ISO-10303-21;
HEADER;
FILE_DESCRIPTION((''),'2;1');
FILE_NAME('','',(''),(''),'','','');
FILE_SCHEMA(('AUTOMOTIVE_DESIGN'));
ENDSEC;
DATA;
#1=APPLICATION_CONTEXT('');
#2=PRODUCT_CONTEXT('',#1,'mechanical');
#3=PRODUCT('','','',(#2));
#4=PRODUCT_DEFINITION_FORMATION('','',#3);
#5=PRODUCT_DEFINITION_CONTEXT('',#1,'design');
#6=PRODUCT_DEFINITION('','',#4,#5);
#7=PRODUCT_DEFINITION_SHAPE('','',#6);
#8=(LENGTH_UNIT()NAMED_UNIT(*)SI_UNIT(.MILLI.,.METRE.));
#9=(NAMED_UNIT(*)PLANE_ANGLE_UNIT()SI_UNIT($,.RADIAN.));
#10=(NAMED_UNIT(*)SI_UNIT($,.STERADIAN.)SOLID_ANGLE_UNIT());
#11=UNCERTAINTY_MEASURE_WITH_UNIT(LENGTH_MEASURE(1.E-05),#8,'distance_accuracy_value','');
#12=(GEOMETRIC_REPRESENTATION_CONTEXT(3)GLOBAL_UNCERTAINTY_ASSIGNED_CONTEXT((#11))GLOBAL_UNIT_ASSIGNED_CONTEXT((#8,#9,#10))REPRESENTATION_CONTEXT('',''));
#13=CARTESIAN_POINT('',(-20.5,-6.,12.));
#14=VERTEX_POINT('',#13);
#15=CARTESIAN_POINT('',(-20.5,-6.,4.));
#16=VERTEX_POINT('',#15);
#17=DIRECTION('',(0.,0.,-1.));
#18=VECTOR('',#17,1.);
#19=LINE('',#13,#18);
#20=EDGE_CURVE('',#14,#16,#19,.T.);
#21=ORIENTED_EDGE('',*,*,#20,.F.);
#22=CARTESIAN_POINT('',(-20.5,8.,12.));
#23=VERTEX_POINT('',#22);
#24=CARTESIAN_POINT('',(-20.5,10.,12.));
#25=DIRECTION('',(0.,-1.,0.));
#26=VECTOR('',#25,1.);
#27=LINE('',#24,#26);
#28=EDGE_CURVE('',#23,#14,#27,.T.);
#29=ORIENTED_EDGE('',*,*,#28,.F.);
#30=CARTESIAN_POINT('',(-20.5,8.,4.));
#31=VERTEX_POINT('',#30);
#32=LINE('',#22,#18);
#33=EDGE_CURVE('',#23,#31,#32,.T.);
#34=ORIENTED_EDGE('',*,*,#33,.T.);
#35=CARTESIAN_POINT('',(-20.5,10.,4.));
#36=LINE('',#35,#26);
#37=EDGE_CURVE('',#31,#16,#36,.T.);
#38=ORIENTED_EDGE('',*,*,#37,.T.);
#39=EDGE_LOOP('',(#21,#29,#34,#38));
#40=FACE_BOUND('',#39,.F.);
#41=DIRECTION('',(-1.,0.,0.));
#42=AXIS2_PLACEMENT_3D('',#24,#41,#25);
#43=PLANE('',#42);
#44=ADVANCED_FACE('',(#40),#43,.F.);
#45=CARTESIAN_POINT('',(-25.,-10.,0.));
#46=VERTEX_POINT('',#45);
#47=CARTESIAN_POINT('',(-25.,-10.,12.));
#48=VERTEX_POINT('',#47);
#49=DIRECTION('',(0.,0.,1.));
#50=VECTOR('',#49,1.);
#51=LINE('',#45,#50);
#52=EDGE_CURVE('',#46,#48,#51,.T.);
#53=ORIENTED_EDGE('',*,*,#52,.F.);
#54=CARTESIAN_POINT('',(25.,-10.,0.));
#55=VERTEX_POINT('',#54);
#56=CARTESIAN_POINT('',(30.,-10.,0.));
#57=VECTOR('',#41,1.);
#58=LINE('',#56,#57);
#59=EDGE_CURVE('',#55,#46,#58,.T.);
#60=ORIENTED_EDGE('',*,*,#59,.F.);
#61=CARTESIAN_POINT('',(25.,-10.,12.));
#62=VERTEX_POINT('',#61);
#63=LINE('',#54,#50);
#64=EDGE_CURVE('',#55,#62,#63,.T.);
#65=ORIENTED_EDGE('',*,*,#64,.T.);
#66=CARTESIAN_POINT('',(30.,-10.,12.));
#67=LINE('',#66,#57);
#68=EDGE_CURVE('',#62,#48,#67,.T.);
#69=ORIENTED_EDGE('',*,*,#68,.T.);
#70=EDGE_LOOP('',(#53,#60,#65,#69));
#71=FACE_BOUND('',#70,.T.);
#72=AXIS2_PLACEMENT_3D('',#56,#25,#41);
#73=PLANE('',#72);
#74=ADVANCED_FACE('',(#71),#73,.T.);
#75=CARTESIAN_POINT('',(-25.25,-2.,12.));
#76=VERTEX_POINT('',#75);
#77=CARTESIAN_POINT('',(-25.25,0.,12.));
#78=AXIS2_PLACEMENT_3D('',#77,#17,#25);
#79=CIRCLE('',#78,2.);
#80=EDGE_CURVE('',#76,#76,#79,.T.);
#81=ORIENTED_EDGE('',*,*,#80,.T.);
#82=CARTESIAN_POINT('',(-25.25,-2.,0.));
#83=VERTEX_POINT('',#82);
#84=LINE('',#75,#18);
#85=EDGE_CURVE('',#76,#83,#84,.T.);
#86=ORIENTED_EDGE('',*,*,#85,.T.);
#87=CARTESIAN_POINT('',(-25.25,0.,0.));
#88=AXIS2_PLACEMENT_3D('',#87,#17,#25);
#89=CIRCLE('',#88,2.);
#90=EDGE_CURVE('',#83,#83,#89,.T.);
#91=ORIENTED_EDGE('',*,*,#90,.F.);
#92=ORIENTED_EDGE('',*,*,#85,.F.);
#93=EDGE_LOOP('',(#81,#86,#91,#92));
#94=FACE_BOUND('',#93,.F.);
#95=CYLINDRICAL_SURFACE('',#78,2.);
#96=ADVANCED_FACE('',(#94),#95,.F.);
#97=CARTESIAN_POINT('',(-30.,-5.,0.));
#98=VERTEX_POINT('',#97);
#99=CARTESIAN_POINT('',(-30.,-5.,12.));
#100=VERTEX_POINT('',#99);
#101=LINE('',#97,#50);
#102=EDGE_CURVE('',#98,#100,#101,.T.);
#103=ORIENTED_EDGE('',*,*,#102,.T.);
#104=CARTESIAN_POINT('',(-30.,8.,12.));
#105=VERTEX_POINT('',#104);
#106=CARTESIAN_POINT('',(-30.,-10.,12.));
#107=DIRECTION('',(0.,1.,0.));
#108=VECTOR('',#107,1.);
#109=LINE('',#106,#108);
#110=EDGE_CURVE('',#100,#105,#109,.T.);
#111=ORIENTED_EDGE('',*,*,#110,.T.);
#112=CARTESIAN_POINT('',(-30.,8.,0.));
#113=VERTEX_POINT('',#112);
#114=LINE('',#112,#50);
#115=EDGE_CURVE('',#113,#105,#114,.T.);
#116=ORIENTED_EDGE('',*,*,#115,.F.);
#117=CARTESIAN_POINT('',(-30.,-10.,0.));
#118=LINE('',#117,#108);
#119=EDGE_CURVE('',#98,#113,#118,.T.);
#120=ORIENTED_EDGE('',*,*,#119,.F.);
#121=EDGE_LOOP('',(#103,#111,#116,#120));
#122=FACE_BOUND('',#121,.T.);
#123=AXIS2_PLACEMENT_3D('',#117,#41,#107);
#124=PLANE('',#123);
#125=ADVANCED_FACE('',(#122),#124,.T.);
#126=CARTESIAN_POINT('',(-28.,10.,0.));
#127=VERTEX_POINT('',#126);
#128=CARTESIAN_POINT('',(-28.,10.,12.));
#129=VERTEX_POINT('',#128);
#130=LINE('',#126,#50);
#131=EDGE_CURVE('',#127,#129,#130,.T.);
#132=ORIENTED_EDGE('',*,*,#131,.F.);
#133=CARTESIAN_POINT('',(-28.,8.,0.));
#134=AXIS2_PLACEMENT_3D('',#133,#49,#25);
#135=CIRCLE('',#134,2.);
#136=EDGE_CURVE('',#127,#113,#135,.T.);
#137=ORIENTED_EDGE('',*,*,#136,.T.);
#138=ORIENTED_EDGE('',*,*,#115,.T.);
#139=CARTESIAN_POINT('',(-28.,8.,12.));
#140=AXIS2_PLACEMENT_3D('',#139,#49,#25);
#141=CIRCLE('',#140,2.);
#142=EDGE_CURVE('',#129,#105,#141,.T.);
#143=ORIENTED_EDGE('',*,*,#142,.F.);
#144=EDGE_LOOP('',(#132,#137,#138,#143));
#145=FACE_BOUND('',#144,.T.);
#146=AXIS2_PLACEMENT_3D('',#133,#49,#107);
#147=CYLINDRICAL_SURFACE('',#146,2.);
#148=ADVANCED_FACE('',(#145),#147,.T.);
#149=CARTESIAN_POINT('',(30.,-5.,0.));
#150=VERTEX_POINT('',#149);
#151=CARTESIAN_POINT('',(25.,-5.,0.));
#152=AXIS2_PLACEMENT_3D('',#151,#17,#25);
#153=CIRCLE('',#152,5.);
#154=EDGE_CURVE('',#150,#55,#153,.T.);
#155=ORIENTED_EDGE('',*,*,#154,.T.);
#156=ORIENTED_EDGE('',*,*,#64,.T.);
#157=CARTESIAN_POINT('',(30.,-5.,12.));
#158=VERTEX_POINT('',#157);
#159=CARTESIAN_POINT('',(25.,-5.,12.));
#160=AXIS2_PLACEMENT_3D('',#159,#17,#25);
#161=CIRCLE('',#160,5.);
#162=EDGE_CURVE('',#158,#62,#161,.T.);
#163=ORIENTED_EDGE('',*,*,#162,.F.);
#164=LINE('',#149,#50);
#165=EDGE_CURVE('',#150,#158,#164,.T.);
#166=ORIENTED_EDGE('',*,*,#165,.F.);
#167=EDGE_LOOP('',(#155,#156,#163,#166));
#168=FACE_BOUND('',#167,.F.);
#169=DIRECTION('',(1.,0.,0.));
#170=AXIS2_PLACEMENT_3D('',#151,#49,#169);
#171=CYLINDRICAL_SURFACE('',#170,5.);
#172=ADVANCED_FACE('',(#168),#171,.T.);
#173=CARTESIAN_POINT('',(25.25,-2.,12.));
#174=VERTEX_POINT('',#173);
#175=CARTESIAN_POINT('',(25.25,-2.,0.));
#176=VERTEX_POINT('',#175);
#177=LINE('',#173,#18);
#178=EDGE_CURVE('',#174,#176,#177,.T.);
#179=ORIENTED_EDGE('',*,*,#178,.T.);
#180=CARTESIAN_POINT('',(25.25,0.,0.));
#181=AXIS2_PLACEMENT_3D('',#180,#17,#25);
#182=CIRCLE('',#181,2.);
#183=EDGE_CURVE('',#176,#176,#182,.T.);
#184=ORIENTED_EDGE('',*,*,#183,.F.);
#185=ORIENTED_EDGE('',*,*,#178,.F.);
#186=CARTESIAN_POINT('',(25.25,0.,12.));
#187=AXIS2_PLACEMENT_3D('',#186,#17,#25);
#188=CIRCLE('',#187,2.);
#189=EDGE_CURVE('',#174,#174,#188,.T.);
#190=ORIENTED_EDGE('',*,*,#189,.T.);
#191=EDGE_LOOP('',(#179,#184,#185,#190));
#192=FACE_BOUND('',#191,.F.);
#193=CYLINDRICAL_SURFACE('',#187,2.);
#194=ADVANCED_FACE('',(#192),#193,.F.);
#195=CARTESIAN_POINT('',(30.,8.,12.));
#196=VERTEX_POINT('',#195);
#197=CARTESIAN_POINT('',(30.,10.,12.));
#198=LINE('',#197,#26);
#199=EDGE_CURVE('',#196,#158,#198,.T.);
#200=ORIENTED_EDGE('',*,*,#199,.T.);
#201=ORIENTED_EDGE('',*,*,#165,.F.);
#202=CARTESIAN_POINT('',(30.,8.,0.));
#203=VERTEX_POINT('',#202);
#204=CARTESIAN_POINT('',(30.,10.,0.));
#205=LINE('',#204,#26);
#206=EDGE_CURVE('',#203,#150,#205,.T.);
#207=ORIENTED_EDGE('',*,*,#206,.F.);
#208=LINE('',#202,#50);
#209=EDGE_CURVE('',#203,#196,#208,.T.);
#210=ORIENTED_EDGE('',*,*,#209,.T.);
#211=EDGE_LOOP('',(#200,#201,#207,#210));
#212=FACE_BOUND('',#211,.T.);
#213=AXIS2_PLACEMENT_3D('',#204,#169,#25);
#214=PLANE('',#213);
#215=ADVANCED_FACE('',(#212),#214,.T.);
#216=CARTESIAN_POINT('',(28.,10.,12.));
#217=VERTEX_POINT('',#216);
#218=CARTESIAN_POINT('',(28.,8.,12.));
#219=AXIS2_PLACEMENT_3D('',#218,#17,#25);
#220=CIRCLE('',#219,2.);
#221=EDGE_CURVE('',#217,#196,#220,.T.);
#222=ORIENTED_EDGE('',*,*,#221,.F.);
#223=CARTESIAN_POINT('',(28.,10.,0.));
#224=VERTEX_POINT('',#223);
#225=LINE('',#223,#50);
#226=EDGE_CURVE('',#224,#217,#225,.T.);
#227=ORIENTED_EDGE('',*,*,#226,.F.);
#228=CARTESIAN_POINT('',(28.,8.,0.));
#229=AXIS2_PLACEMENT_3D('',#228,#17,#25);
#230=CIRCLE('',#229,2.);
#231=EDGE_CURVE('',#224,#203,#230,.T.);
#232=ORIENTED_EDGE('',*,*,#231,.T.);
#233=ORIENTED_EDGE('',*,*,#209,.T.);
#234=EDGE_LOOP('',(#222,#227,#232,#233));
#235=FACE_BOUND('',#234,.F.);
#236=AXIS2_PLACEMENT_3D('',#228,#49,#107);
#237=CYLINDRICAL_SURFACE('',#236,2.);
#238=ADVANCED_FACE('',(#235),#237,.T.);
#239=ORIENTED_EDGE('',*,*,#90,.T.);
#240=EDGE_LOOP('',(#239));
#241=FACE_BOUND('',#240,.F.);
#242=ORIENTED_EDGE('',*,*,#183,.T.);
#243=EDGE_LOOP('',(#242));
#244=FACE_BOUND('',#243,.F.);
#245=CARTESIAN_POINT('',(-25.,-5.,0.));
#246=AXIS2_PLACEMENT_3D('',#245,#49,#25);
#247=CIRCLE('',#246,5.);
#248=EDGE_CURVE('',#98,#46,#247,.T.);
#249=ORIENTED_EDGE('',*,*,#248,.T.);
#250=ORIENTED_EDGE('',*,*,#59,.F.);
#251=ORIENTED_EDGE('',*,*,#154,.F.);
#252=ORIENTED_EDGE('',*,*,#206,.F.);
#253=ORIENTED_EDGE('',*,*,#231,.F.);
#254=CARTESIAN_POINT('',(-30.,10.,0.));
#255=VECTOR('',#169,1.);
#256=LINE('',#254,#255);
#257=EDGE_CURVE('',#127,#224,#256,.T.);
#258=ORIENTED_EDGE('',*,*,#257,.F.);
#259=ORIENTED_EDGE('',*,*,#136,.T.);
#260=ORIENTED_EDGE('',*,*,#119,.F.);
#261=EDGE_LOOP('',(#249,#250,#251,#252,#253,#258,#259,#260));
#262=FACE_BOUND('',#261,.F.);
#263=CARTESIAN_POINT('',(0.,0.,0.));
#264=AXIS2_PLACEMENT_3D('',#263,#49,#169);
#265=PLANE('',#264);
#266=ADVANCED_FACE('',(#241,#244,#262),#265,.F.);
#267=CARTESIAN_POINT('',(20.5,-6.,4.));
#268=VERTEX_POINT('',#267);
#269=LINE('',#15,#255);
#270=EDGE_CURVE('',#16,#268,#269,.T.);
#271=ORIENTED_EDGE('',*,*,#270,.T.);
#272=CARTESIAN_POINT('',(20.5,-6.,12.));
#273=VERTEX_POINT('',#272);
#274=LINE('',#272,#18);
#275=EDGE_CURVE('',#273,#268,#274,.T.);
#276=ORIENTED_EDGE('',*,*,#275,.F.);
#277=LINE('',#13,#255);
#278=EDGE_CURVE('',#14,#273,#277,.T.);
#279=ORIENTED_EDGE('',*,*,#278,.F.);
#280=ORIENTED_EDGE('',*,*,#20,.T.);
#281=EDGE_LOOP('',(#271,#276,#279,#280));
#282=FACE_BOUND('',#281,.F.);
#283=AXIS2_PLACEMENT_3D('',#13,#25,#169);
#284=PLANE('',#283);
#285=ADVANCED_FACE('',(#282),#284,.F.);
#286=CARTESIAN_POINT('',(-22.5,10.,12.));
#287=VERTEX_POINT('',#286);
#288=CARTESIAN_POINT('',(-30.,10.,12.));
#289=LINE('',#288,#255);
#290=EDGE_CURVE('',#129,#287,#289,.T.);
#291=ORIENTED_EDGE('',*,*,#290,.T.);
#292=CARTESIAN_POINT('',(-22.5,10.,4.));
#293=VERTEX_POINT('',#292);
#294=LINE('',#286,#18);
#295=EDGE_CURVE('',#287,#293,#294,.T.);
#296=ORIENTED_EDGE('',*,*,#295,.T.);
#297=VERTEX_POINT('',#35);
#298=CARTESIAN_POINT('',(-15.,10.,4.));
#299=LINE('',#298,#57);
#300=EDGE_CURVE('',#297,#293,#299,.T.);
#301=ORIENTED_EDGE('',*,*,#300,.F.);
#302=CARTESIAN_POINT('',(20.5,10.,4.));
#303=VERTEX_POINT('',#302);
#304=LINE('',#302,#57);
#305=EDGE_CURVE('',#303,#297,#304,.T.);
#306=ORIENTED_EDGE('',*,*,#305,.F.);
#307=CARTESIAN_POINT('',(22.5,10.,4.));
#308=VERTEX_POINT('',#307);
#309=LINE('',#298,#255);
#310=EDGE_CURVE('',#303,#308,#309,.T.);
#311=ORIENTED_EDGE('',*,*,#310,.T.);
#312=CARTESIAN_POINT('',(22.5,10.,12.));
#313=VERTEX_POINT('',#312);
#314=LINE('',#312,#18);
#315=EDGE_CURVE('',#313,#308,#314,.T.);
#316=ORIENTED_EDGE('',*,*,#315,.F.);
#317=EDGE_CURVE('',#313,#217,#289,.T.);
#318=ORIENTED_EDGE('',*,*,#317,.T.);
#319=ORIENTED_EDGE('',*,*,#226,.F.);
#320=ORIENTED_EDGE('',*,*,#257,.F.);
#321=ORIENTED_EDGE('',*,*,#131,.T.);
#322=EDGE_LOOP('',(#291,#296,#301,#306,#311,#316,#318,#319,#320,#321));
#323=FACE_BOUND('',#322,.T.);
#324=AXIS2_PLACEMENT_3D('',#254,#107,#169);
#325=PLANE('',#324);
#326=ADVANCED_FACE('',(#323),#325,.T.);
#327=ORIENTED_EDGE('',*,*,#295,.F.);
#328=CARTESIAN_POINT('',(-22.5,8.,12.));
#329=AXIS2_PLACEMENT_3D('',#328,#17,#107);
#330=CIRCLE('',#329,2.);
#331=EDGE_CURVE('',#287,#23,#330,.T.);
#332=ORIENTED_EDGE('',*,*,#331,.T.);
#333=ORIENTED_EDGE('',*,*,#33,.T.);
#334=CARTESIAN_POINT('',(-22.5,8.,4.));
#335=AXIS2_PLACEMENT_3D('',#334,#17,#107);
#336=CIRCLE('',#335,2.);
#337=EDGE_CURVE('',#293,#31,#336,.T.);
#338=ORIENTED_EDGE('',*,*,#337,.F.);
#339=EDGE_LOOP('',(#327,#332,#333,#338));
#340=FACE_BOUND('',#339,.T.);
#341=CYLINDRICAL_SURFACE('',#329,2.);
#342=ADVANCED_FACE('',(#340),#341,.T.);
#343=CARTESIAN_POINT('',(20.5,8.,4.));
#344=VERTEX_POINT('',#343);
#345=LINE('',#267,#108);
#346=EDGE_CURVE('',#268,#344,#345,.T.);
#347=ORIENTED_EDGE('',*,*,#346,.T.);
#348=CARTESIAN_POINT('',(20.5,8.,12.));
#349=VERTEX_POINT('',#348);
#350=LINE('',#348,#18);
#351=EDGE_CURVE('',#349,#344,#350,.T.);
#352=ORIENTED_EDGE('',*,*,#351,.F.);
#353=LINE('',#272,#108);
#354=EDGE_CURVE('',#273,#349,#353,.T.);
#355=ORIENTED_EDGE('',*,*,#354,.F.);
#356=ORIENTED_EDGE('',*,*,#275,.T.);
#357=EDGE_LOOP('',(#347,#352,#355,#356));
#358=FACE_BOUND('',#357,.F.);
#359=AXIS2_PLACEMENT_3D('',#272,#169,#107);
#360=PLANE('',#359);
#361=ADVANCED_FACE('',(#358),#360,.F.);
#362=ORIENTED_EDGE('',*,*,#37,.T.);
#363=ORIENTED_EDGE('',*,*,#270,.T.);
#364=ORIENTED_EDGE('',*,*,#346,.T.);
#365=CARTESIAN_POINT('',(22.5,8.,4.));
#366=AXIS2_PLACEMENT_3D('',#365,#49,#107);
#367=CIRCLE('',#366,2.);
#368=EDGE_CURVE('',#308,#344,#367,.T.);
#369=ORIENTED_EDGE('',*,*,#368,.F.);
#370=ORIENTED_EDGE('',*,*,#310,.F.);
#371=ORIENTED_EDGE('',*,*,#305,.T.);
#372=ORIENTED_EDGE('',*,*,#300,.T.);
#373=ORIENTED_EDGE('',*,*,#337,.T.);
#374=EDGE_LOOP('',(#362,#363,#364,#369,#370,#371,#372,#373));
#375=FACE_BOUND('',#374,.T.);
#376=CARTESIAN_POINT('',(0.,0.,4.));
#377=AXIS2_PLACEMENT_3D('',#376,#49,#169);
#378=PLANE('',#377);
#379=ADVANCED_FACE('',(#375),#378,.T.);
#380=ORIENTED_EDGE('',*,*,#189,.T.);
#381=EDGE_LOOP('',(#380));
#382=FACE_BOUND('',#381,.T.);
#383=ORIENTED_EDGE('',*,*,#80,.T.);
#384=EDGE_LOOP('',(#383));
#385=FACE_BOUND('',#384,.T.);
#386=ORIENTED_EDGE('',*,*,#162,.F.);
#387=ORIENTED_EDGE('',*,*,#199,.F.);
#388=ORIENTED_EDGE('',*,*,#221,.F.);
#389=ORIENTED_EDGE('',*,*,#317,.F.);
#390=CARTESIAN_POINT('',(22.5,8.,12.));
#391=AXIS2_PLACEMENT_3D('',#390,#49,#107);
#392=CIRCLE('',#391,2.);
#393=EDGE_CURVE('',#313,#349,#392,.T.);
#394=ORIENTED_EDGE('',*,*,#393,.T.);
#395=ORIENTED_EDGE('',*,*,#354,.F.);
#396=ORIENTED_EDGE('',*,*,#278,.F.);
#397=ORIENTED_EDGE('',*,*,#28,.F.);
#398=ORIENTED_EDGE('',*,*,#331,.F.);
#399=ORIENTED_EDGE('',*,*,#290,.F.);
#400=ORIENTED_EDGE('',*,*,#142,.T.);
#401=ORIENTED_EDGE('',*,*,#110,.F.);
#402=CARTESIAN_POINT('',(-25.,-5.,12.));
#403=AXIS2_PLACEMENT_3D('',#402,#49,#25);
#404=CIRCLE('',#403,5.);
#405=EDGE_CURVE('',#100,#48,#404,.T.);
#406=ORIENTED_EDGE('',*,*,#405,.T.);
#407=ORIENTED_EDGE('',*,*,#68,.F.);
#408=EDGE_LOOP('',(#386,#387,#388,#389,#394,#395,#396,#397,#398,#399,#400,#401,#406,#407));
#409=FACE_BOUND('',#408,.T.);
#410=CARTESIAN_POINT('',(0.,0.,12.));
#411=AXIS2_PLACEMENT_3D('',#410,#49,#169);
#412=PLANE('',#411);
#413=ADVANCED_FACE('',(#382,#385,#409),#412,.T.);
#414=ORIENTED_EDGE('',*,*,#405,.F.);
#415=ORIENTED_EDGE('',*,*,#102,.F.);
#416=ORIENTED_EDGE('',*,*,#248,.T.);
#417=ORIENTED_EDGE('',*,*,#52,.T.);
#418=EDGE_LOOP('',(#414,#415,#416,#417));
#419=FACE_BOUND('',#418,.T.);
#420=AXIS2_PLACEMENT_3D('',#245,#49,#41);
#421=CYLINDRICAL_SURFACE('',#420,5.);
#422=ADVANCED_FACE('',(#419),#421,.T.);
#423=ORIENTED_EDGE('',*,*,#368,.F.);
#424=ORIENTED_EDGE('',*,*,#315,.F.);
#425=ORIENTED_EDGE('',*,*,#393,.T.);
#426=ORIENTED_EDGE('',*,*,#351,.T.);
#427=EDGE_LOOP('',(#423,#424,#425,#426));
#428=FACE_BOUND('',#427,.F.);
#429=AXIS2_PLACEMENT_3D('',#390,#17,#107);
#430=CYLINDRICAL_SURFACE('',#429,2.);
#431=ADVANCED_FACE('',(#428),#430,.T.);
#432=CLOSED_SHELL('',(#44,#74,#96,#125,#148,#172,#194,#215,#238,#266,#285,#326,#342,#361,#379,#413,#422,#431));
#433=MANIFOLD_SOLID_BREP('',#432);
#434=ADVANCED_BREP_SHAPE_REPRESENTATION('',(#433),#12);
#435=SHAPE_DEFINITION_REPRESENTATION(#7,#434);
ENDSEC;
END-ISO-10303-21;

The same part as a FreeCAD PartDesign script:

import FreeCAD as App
import Part
import Sketcher
from FreeCAD import Vector
Q = App.Units.Quantity


def edges_at(feature, points):
    """Names of the edges that pass closest to the given points."""
    edges = feature.Shape.Edges
    near = lambda p: min(range(len(edges)), key=lambda i: edges[i].distToShape(Part.Vertex(*p))[0])
    return sorted({f"Edge{near(p) + 1}" for p in points})

doc = App.newDocument("Part")
params = doc.addObject("Spreadsheet::Sheet", "Params")
for row, (alias, value) in enumerate([
    ("sketch1_width", "60 mm"),
    ("sketch1_height", "20 mm"),
    ("pad1_length", "12 mm"),
    ("sketch2_width", "41 mm"),
    ("sketch2_height", "16 mm"),
    ("pocket1_length", "8 mm"),
    ("sketch3_diameter", "4 mm"),
    ("hole_diameter", "4 mm"),
    ("fillet_radius", "2 mm"),
    ("fillet2_radius", "5 mm"),
], start=1):
    params.set(f"A{row}", alias)
    params.set(f"B{row}", "=" + value)
    params.setAlias(f"B{row}", alias)

body = doc.addObject("PartDesign::Body", "Body")

# Sketch on XY plane
sketch1 = doc.addObject("Sketcher::SketchObject", "Sketch")
body.addObject(sketch1)
sketch1.AttachmentSupport = (doc.XY_Plane, [""])
sketch1.MapMode = "FlatFace"
sketch1.addGeometry(Part.LineSegment(Vector(30, 10, 0), Vector(-30, 10, 0)), False)
sketch1.addGeometry(Part.LineSegment(Vector(-30, 10, 0), Vector(-30, -10, 0)), False)
sketch1.addGeometry(Part.LineSegment(Vector(-30, -10, 0), Vector(30, -10, 0)), False)
sketch1.addGeometry(Part.LineSegment(Vector(30, -10, 0), Vector(30, 10, 0)), False)
sketch1.addConstraint(Sketcher.Constraint("Coincident", 0, 2, 1, 1))
sketch1.addConstraint(Sketcher.Constraint("Coincident", 1, 2, 2, 1))
sketch1.addConstraint(Sketcher.Constraint("Coincident", 2, 2, 3, 1))
sketch1.addConstraint(Sketcher.Constraint("Coincident", 3, 2, 0, 1))
sketch1.addConstraint(Sketcher.Constraint("Horizontal", 0))
sketch1.addConstraint(Sketcher.Constraint("Vertical", 1))
sketch1.addConstraint(Sketcher.Constraint("Horizontal", 2))
sketch1.addConstraint(Sketcher.Constraint("Vertical", 3))
sketch1.addConstraint(Sketcher.Constraint("Symmetric", 0, 2, 2, 2, -1, 1))
sketch1.addConstraint(Sketcher.Constraint("DistanceX", 0, 2, 0, 1, Q("60 mm")))
sketch1.addConstraint(Sketcher.Constraint("DistanceY", 1, 2, 1, 1, Q("20 mm")))
sketch1.setExpression("Constraints[9]", "Params.sketch1_width")
sketch1.setExpression("Constraints[10]", "Params.sketch1_height")
pad1 = doc.addObject("PartDesign::Pad", "Pad")
body.addObject(pad1)
pad1.Profile = sketch1
pad1.setExpression("Length", "Params.pad1_length")

# Sketch on XY plane
sketch2 = doc.addObject("Sketcher::SketchObject", "Sketch001")
body.addObject(sketch2)
sketch2.AttachmentSupport = (doc.XY_Plane, [""])
sketch2.MapMode = "FlatFace"
sketch2.AttachmentOffset = App.Placement(Vector(0, 0, 12), App.Rotation())
sketch2.addGeometry(Part.LineSegment(Vector(-20, 10, 0), Vector(-20, -6, 0)), False)
sketch2.addGeometry(Part.LineSegment(Vector(-20, -6, 0), Vector(20, -6, 0)), False)
sketch2.addGeometry(Part.LineSegment(Vector(20, -6, 0), Vector(20, 10, 0)), False)
sketch2.addGeometry(Part.LineSegment(Vector(20, 10, 0), Vector(-20, 10, 0)), False)
sketch2.addConstraint(Sketcher.Constraint("Coincident", 0, 2, 1, 1))
sketch2.addConstraint(Sketcher.Constraint("Coincident", 1, 2, 2, 1))
sketch2.addConstraint(Sketcher.Constraint("Coincident", 2, 2, 3, 1))
sketch2.addConstraint(Sketcher.Constraint("Coincident", 3, 2, 0, 1))
sketch2.addConstraint(Sketcher.Constraint("Vertical", 0))
sketch2.addConstraint(Sketcher.Constraint("Horizontal", 1))
sketch2.addConstraint(Sketcher.Constraint("Vertical", 2))
sketch2.addConstraint(Sketcher.Constraint("Horizontal", 3))
sketch2.addConstraint(Sketcher.Constraint("DistanceX", 1, 1, 1, 2, Q("41 mm")))
sketch2.addConstraint(Sketcher.Constraint("DistanceY", 0, 2, 0, 1, Q("16 mm")))
sketch2.addConstraint(Sketcher.Constraint("DistanceY", 0, 2, -1, 1, Q("6 mm")))
sketch2.addConstraint(Sketcher.Constraint("DistanceX", 0, 2, -1, 1, Q("20.5 mm")))
sketch2.setExpression("Constraints[8]", "Params.sketch2_width")
sketch2.setExpression("Constraints[9]", "Params.sketch2_height")
pocket1 = doc.addObject("PartDesign::Pocket", "Pocket")
body.addObject(pocket1)
pocket1.Profile = sketch2
pocket1.setExpression("Length", "Params.pocket1_length")

# Sketch on XY plane
sketch3 = doc.addObject("Sketcher::SketchObject", "Sketch002")
body.addObject(sketch3)
sketch3.AttachmentSupport = (doc.XY_Plane, [""])
sketch3.MapMode = "FlatFace"
sketch3.AttachmentOffset = App.Placement(Vector(0, 0, 12), App.Rotation())
sketch3.addGeometry(Part.Circle(Vector(-25.2, 0, 0), Vector(0, 0, 1), 2), False)
sketch3.addGeometry(Part.Circle(Vector(25.2, 0, 0), Vector(0, 0, 1), 2), False)
sketch3.addConstraint(Sketcher.Constraint("Equal", 0, 1))
sketch3.addConstraint(Sketcher.Constraint("Symmetric", 0, 3, 1, 3, -1, 1))
sketch3.addConstraint(Sketcher.Constraint("PointOnObject", 0, 3, -1))
sketch3.addConstraint(Sketcher.Constraint("Diameter", 0, Q("4 mm")))
sketch3.addConstraint(Sketcher.Constraint("DistanceX", 0, 3, 1, 3, Q("50.5 mm")))
sketch3.setExpression("Constraints[3]", "Params.sketch3_diameter")
doc.recompute()
hole = doc.addObject("PartDesign::Hole", "Hole")
body.addObject(hole)
hole.Profile = sketch3
hole.ThreadType = "None"
hole.setExpression("Diameter", "Params.hole_diameter")
hole.DepthType = "ThroughAll"
doc.recompute()

fillet = doc.addObject("PartDesign::Fillet", "Fillet")
body.addObject(fillet)
fillet.Base = (hole, edges_at(hole, [
    (-30, 10, 6),
    (-20.5, 10, 8),
    (20.5, 10, 8),
    (30, 10, 6),
]))
fillet.setExpression("Radius", "Params.fillet_radius")
doc.recompute()

fillet2 = doc.addObject("PartDesign::Fillet", "Fillet001")
body.addObject(fillet2)
fillet2.Base = (fillet, edges_at(fillet, [(30, -10, 6), (-30, -10, 6)]))
fillet2.setExpression("Radius", "Params.fillet2_radius")

doc.recompute()
